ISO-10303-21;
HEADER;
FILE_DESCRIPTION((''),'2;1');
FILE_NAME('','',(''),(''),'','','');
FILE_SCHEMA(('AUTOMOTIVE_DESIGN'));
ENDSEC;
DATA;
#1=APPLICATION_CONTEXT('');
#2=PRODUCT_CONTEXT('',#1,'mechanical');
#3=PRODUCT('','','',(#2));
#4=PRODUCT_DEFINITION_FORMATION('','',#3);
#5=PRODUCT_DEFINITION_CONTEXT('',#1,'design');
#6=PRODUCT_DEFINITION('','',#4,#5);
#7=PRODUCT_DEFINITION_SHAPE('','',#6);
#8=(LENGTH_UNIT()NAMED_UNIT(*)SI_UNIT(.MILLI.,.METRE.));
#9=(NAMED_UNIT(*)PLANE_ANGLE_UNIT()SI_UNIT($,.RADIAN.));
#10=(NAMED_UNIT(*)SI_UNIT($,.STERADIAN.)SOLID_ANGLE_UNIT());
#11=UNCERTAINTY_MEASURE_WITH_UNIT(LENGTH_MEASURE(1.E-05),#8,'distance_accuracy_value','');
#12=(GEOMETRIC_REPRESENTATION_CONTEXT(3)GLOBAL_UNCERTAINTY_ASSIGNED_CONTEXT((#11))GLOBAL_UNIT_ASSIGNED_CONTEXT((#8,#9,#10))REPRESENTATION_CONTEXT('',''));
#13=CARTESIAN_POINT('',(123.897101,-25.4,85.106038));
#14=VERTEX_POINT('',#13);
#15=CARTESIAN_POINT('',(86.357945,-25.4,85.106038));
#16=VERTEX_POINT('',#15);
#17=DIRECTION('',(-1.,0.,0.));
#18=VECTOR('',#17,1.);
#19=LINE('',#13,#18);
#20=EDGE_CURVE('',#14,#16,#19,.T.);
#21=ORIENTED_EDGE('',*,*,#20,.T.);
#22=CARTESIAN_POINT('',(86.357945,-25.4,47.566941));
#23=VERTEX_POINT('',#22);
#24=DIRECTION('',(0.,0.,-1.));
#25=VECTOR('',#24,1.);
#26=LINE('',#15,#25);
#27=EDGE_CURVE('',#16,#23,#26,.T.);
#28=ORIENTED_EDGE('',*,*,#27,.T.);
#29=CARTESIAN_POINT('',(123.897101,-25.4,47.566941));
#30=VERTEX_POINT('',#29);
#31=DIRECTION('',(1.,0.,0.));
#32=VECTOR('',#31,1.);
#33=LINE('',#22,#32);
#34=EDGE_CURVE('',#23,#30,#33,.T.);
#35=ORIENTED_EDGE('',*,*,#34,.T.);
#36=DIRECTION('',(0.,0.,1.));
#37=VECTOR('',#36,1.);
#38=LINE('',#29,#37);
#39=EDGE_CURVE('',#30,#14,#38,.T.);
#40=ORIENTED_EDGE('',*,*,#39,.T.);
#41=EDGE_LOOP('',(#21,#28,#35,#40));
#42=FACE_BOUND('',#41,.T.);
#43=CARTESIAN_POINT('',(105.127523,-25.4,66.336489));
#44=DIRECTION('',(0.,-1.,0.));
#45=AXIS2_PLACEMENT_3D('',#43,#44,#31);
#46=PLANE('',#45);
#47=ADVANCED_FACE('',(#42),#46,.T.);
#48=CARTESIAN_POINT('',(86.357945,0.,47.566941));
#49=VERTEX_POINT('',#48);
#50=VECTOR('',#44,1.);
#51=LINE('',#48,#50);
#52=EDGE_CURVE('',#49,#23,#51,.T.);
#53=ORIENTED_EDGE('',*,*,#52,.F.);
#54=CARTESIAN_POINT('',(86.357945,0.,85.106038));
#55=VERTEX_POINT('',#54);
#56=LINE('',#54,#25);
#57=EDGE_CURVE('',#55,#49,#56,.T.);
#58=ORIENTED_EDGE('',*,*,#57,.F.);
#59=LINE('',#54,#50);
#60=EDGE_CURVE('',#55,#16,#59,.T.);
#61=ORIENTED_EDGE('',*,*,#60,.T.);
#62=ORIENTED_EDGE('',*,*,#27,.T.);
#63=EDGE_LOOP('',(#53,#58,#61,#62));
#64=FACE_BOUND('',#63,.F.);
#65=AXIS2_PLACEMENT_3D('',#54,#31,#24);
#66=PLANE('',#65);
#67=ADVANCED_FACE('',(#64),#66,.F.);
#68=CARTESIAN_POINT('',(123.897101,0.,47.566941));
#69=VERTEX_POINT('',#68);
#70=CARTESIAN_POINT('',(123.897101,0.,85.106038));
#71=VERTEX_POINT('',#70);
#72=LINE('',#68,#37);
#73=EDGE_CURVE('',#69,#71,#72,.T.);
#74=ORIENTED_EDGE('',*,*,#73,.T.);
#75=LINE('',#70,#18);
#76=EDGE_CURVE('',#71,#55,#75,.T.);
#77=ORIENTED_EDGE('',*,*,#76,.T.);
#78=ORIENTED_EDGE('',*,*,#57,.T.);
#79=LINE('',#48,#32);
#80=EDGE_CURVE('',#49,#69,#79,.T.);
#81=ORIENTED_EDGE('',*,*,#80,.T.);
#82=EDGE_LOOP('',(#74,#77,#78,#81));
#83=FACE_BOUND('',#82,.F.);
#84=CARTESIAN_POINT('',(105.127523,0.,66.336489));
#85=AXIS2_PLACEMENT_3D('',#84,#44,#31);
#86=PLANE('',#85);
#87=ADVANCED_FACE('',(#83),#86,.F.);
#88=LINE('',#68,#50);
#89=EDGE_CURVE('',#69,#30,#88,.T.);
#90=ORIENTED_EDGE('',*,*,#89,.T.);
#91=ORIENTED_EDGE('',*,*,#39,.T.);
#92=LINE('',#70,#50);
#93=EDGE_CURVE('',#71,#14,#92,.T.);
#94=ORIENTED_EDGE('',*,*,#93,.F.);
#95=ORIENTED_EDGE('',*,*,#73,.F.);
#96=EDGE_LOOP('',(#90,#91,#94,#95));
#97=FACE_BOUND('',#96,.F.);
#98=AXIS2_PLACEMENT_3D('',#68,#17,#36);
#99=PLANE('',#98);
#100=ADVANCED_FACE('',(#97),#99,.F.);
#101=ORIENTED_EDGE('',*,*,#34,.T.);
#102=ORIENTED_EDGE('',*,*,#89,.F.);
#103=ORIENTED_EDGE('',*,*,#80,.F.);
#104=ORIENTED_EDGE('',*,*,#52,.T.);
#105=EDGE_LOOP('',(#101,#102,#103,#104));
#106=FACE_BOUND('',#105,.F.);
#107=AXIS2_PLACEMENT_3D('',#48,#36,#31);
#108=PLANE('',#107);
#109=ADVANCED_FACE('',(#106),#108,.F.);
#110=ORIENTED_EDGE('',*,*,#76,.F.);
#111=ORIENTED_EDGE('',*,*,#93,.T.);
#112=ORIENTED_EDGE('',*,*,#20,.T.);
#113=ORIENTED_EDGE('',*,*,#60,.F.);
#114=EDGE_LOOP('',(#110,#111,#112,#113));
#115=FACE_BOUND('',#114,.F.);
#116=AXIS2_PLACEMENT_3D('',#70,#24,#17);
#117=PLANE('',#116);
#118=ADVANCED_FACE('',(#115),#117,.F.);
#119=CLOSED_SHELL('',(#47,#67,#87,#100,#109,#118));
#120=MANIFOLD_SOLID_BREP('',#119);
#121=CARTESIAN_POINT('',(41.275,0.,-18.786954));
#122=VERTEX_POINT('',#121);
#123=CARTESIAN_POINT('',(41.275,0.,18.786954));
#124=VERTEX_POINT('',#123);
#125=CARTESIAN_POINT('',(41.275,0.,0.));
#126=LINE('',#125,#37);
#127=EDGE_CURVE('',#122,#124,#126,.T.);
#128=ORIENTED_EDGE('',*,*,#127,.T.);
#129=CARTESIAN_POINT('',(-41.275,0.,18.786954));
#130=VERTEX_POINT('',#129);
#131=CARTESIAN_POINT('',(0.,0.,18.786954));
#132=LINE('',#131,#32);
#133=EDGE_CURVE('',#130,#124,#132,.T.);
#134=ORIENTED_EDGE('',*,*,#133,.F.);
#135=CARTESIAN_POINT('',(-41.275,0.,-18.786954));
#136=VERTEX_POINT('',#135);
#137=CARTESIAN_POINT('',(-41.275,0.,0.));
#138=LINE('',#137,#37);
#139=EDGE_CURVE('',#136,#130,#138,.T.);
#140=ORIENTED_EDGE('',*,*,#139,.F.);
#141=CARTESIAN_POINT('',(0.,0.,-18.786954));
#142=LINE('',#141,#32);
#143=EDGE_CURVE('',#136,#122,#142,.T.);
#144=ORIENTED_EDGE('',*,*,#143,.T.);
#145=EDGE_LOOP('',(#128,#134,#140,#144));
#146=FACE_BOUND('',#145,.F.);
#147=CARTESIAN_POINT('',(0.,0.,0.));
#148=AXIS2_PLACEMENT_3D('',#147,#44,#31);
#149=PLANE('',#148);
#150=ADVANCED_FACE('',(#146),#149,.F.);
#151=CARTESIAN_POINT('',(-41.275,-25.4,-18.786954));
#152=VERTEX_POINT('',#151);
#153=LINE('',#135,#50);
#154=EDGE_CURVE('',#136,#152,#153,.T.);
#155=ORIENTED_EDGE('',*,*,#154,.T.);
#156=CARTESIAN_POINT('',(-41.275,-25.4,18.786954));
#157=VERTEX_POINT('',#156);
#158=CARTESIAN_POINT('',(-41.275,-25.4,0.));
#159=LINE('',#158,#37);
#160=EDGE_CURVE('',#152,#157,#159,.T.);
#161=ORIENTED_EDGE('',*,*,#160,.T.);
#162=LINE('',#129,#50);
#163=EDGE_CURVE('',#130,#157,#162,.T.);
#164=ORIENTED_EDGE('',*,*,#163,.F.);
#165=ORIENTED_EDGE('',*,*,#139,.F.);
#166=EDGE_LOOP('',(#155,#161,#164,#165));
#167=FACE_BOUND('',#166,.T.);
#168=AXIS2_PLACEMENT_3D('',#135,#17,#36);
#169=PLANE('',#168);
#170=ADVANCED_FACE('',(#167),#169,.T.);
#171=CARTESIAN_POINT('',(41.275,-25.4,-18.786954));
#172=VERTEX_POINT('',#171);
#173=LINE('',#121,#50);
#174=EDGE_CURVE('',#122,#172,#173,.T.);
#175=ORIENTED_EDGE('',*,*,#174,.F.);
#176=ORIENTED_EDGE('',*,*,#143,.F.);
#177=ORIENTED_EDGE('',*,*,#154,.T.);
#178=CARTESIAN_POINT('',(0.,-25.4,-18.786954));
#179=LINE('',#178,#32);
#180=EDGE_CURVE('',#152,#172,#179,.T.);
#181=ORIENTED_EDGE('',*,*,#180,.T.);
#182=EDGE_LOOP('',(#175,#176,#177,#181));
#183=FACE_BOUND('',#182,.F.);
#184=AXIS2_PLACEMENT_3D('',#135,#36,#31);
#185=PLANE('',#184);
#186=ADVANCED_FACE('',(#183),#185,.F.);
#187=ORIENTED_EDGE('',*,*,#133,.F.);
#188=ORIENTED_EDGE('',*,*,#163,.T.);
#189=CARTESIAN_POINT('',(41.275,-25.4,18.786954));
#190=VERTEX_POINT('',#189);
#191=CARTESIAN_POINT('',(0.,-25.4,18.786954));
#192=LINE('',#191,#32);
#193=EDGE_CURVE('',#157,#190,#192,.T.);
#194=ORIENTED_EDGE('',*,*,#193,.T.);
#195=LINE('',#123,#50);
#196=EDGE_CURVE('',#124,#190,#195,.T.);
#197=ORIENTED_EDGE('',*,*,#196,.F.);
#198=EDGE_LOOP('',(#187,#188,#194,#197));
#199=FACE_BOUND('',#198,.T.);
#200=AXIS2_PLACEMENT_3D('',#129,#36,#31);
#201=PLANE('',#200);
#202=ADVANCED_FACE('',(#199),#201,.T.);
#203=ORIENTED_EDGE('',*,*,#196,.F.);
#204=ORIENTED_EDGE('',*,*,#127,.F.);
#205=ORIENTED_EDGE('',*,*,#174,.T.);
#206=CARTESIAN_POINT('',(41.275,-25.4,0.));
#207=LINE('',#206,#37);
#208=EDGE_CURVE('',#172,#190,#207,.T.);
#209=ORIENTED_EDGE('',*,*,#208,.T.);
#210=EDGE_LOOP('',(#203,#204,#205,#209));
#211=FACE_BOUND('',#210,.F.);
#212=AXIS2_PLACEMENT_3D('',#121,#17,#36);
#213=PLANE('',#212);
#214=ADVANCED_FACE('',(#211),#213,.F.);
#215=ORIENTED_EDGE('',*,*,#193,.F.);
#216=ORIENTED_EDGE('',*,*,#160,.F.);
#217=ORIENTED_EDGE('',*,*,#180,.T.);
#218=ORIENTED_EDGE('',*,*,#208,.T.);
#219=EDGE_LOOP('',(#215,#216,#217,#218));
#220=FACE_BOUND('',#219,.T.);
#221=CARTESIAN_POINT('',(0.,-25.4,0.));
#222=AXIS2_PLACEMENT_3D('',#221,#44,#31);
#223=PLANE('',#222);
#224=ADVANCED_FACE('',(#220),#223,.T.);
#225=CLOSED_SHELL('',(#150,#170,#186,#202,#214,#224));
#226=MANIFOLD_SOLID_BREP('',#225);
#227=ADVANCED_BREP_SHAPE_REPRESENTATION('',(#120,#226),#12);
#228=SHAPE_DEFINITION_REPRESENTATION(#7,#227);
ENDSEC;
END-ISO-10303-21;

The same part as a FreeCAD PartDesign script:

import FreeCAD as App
import Part
import Sketcher

V = App.Vector
Q = App.Units.Quantity


def add_polygon(sketch, points):
    """Adds a closed chain of lines whose ends are joined by coincident constraints."""
    first, n = sketch.GeometryCount, len(points)
    for a, b in zip(points, points[1:] + points[:1]):
        sketch.addGeometry(Part.LineSegment(App.Vector(*a, 0), App.Vector(*b, 0)), False)
    for i in range(n):
        sketch.addConstraint(Sketcher.Constraint("Coincident", first + i, 2, first + (i + 1) % n, 1))

doc = App.newDocument("Part")
params = doc.addObject("Spreadsheet::Sheet", "Params")
for row, (alias, value) in enumerate([
    ("sketch1_width", "3.25 in"),
    ("pad1_length", "1 in"),
], start=1):
    params.set(f"A{row}", alias)
    params.set(f"B{row}", "=" + value)
    params.setAlias(f"B{row}", alias)

body = doc.addObject("PartDesign::Body", "Body")
body.AllowCompound = True

sketch1 = doc.addObject("Sketcher::SketchObject", "Sketch")
body.addObject(sketch1)
sketch1.AttachmentSupport = (doc.XZ_Plane, [""])
sketch1.MapMode = "FlatFace"
add_polygon(sketch1, [(86, 85), (86, 48), (124, 48), (124, 85)])
add_polygon(sketch1, [(-41, 19), (-41, -19), (41, -19), (41, 19)])
sketch1.addConstraint([
    Sketcher.Constraint("Vertical", 0),
    Sketcher.Constraint("Horizontal", 1),
    Sketcher.Constraint("Vertical", 2),
    Sketcher.Constraint("Horizontal", 3),
    Sketcher.Constraint("Vertical", 4),
    Sketcher.Constraint("Horizontal", 5),
    Sketcher.Constraint("Vertical", 6),
    Sketcher.Constraint("Horizontal", 7),
    Sketcher.Constraint("Symmetric", 4, 2, 6, 2, -1, 1),
    Sketcher.Constraint("DistanceX", 5, 1, 5, 2, Q("3.25 in")),
    Sketcher.Constraint("DistanceY", 4, 2, 4, 1, Q("37.573908 mm")),
    Sketcher.Constraint("DistanceX", -1, 1, 1, 2, Q("123.897101 mm")),
    Sketcher.Constraint("DistanceX", 1, 1, 1, 2, Q("37.539156 mm")),
    Sketcher.Constraint("DistanceY", 0, 2, 0, 1, Q("37.539097 mm")),
    Sketcher.Constraint("DistanceY", -1, 1, 0, 2, Q("47.566941 mm")),
])
sketch1.setExpression("Constraints[17]", "Params.sketch1_width")
pad1 = doc.addObject("PartDesign::Pad", "Pad")
body.addObject(pad1)
pad1.Profile = sketch1
pad1.setExpression("Length", "Params.pad1_length")

doc.recompute()
